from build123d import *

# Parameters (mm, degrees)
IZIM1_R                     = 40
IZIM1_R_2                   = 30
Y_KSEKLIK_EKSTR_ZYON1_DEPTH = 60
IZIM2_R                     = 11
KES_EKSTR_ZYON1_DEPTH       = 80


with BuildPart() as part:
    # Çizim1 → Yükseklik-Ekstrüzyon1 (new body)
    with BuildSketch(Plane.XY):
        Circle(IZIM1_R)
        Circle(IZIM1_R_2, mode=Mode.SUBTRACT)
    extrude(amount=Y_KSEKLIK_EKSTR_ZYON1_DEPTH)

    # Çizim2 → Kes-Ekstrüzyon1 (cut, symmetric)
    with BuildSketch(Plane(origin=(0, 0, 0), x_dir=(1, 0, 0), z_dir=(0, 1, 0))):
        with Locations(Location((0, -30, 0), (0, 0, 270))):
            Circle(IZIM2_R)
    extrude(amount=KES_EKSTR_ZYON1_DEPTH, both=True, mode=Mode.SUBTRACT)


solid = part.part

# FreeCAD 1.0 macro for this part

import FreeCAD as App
import Part
import Sketcher
from FreeCAD import Vector

doc = App.newDocument("Part")
params = doc.addObject("Spreadsheet::Sheet", "Params")
for row, (alias, value) in enumerate([
    ("sketch1_diameter", "80 mm"),
    ("sketch1_diameter2", "60 mm"),
    ("pad1_length", "60 mm"),
    ("sketch2_diameter", "22 mm"),
    ("pocket1_length", "160 mm"),
], start=1):
    params.set(f"A{row}", alias)
    params.set(f"B{row}", "=" + value)
    params.setAlias(f"B{row}", alias)

body = doc.addObject("PartDesign::Body", "Body")

# Sketch on XY plane
sketch1 = body.newObject("Sketcher::SketchObject", "Sketch")
sketch1.AttachmentSupport = (doc.getObject("XY_Plane"), [""])
sketch1.MapMode = "FlatFace"
sketch1.addGeometry([
    Part.Circle(Vector(0, 0, 0), Vector(0, 0, 1), 40),
    Part.Circle(Vector(0, 0, 0), Vector(0, 0, 1), 30),
], False)
sketch1.addConstraint([
    Sketcher.Constraint("Coincident", 0, 3, -1, 1),
    Sketcher.Constraint("Coincident", 1, 3, -1, 1),
    Sketcher.Constraint("Diameter", 0, 80.0),
    Sketcher.Constraint("Diameter", 1, 60.0),
])
sketch1.setExpression("Constraints[2]", "Params.sketch1_diameter")
sketch1.setExpression("Constraints[3]", "Params.sketch1_diameter2")
pad1 = body.newObject("PartDesign::Pad", "Pad")
pad1.Profile = sketch1
pad1.setExpression("Length", "Params.pad1_length")

# Sketch on XZ plane
sketch2 = body.newObject("Sketcher::SketchObject", "Sketch001")
sketch2.AttachmentSupport = (doc.getObject("XZ_Plane"), [""])
sketch2.MapMode = "FlatFace"
sketch2.addGeometry(Part.Circle(Vector(0, 30, 0), Vector(0, 0, 1), 11), False)
sketch2.addConstraint([
    Sketcher.Constraint("PointOnObject", 0, 3, -2),
    Sketcher.Constraint("Diameter", 0, 22.0),
    Sketcher.Constraint("DistanceY", -1, 1, 0, 3, 30.0),
])
sketch2.setExpression("Constraints[1]", "Params.sketch2_diameter")
pocket1 = body.newObject("PartDesign::Pocket", "Pocket")
pocket1.Profile = sketch2
pocket1.setExpression("Length", "Params.pocket1_length")
pocket1.Midplane = True

doc.recompute()
